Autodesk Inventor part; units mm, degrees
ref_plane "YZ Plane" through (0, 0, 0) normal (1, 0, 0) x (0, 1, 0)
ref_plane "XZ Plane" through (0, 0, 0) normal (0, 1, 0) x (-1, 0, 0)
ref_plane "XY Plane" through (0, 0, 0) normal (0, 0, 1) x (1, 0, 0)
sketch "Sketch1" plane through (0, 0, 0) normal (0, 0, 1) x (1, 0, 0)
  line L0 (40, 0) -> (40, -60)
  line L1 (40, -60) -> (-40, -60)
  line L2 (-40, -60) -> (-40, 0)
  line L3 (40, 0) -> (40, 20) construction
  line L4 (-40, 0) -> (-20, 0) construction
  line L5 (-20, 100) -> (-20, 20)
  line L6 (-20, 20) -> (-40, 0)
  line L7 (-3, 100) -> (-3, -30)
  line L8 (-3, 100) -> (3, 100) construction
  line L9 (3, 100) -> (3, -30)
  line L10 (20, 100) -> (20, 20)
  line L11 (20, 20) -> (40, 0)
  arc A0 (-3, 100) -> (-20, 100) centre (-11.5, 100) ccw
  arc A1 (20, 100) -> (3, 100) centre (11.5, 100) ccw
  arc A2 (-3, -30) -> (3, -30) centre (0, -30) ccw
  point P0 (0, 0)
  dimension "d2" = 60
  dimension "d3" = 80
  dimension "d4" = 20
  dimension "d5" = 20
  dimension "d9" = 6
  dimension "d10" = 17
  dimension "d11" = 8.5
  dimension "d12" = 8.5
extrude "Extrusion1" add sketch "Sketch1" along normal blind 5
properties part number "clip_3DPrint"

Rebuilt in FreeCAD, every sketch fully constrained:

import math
import FreeCAD as App
import Part
import Sketcher
from FreeCAD import Vector
Q = App.Units.Quantity

doc = App.newDocument("Part")
body = doc.addObject("PartDesign::Body", "Body")

# Sketch on XY plane
sketch1 = doc.addObject("Sketcher::SketchObject", "Sketch")
body.addObject(sketch1)
sketch1.AttachmentSupport = (doc.XY_Plane, [""])
sketch1.MapMode = "FlatFace"
sketch1.addGeometry([
    Part.LineSegment(Vector(40, -60, 0), Vector(40, 0, 0)),  # 0
    Part.LineSegment(Vector(40, 0, 0), Vector(20, 20, 0)),  # 1
    Part.LineSegment(Vector(20, 20, 0), Vector(20, 100, 0)),  # 2
    Part.ArcOfCircle(Part.Circle(Vector(11.5, 100, 0), Vector(0, 0, 1), 8.5), math.radians(0), math.radians(180)),  # 3
    Part.LineSegment(Vector(3, 100, 0), Vector(3, -30, 0)),  # 4
    Part.ArcOfCircle(Part.Circle(Vector(0, -30, 0), Vector(0, 0, 1), 3), math.radians(180), math.radians(360)),  # 5
    Part.LineSegment(Vector(-3, -30, 0), Vector(-3, 100, 0)),  # 6
    Part.ArcOfCircle(Part.Circle(Vector(-11.5, 100, 0), Vector(0, 0, 1), 8.5), math.radians(0), math.radians(180)),  # 7
    Part.LineSegment(Vector(-20, 100, 0), Vector(-20, 20, 0)),  # 8
    Part.LineSegment(Vector(-20, 20, 0), Vector(-40, 0, 0)),  # 9
    Part.LineSegment(Vector(-40, 0, 0), Vector(-40, -60, 0)),  # 10
    Part.LineSegment(Vector(-40, -60, 0), Vector(40, -60, 0)),  # 11
], False)
sketch1.addConstraint([
    Sketcher.Constraint("Coincident", 0, 2, 1, 1),
    Sketcher.Constraint("Coincident", 1, 2, 2, 1),
    Sketcher.Constraint("Tangent", 2, 2, 3, 1),
    Sketcher.Constraint("Tangent", 3, 2, 4, 1),
    Sketcher.Constraint("Tangent", 4, 2, 5, 2),
    Sketcher.Constraint("Tangent", 5, 1, 6, 1),
    Sketcher.Constraint("Tangent", 6, 2, 7, 1),
    Sketcher.Constraint("Tangent", 7, 2, 8, 1),
    Sketcher.Constraint("Coincident", 8, 2, 9, 1),
    Sketcher.Constraint("Coincident", 9, 2, 10, 1),
    Sketcher.Constraint("Coincident", 10, 2, 11, 1),
    Sketcher.Constraint("Coincident", 11, 2, 0, 1),
    Sketcher.Constraint("Vertical", 0),
    Sketcher.Constraint("Vertical", 2),
    Sketcher.Constraint("Vertical", 4),
    Sketcher.Constraint("Vertical", 6),
    Sketcher.Constraint("Vertical", 8),
    Sketcher.Constraint("Vertical", 10),
    Sketcher.Constraint("Horizontal", 11),
    Sketcher.Constraint("Equal", 3, 7),
    Sketcher.Constraint("Symmetric", 0, 2, 9, 2, -1, 1),
    Sketcher.Constraint("Symmetric", 3, 3, 7, 3, -2),
    Sketcher.Constraint("PointOnObject", 0, 2, -1),
    Sketcher.Constraint("Perpendicular", 1, 9),
    Sketcher.Constraint("Horizontal", 1, 2, 8, 2),
    Sketcher.Constraint("Equal", 11, 2),
    Sketcher.Constraint("Radius", 5, Q("3 mm")),
    Sketcher.Constraint("Radius", 3, Q("8.5 mm")),
    Sketcher.Constraint("DistanceX", 11, 1, 11, 2, Q("80 mm")),
    Sketcher.Constraint("DistanceY", 0, 1, 0, 2, Q("60 mm")),
    Sketcher.Constraint("DistanceY", 4, 2, 4, 1, Q("130 mm")),
])
pad1 = doc.addObject("PartDesign::Pad", "Pad")
body.addObject(pad1)
pad1.Profile = sketch1
pad1.Length = 5

doc.recompute()
